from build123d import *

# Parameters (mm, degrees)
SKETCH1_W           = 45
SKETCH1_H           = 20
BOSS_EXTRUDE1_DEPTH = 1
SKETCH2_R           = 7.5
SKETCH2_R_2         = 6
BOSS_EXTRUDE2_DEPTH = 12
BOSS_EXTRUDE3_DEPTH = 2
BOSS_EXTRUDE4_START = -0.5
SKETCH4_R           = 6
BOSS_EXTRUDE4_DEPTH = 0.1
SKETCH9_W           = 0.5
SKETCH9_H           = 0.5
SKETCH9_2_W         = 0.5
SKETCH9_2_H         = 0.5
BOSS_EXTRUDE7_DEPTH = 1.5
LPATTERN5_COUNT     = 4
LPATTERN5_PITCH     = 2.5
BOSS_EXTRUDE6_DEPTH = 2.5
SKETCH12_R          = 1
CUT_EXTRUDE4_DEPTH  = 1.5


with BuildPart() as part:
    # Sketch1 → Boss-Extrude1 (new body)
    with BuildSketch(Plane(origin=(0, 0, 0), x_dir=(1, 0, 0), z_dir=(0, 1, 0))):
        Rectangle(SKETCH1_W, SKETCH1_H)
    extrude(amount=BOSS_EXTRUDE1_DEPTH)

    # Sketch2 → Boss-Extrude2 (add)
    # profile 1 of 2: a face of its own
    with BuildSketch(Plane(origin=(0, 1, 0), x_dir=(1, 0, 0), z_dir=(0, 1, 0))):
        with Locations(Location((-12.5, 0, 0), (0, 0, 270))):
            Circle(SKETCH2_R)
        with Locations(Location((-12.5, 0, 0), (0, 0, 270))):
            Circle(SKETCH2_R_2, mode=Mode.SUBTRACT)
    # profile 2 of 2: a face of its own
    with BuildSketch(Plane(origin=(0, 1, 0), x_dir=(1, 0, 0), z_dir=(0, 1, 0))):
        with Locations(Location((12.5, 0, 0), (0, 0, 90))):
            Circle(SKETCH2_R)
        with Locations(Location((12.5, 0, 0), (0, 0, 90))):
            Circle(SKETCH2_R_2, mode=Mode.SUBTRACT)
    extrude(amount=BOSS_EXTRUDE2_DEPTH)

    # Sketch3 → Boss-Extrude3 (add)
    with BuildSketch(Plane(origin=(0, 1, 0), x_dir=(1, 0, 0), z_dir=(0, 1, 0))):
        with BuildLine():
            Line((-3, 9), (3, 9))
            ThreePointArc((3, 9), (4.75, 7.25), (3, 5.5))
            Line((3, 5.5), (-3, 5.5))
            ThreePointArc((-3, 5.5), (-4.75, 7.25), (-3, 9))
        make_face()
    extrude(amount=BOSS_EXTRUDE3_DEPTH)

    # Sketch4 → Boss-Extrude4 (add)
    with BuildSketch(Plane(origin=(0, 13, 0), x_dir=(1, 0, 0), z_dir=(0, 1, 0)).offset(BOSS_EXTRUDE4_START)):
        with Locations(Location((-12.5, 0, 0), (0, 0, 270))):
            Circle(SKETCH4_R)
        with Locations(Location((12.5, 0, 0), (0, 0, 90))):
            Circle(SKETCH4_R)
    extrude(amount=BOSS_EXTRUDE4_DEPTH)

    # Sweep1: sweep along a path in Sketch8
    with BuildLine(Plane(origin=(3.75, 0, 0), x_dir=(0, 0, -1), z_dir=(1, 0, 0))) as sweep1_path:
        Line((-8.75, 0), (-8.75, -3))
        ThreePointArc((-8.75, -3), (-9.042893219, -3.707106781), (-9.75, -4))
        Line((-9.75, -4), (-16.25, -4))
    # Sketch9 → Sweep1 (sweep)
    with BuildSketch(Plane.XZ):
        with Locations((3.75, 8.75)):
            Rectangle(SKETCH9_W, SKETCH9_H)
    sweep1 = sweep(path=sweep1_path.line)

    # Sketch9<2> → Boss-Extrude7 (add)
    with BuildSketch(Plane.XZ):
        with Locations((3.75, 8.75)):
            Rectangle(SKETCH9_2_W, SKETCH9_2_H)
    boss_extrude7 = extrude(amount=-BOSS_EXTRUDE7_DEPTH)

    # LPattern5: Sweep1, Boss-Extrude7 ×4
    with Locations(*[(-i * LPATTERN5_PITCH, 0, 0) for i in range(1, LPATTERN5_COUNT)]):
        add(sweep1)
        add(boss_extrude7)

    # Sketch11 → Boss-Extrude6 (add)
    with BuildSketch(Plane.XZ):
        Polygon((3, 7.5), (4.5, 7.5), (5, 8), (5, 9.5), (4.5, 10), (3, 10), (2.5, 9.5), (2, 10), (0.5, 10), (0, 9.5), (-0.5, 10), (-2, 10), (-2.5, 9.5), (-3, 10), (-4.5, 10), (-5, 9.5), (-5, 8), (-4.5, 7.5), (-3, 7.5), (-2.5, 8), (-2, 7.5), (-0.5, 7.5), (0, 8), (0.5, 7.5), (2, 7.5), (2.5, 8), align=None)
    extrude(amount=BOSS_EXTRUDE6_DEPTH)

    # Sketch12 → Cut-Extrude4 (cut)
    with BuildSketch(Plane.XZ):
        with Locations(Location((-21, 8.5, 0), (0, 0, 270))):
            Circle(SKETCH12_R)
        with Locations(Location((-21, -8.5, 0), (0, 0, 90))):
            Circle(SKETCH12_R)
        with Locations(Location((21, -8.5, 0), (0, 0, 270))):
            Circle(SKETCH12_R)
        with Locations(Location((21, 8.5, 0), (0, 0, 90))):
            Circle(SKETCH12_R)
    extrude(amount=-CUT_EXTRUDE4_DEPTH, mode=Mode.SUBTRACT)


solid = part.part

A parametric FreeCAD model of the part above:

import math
import FreeCAD as App
import Part
import Sketcher

doc = App.newDocument("Part")
body = doc.addObject("PartDesign::Body", "Body")

sketch1 = doc.addObject("Sketcher::SketchObject", "Sketch")
body.addObject(sketch1)
sketch1.AttachmentSupport = (doc.XZ_Plane, [""])
sketch1.MapMode = "FlatFace"
sketch1.addGeometry([
    Part.LineSegment(App.Vector(-22, -10, 0), App.Vector(-22, 10, 0)),
    Part.LineSegment(App.Vector(-22, 10, 0), App.Vector(22, 10, 0)),
    Part.LineSegment(App.Vector(22, 10, 0), App.Vector(22, -10, 0)),
    Part.LineSegment(App.Vector(22, -10, 0), App.Vector(-22, -10, 0)),
], False)
sketch1.addConstraint([
    Sketcher.Constraint("Coincident", 0, 2, 1, 1),
    Sketcher.Constraint("Coincident", 1, 2, 2, 1),
    Sketcher.Constraint("Coincident", 2, 2, 3, 1),
    Sketcher.Constraint("Coincident", 3, 2, 0, 1),
    Sketcher.Constraint("Vertical", 0),
    Sketcher.Constraint("Horizontal", 1),
    Sketcher.Constraint("Vertical", 2),
    Sketcher.Constraint("Horizontal", 3),
    Sketcher.Constraint("Symmetric", 0, 2, 2, 2, -1, 1),
    Sketcher.Constraint("DistanceX", 1, 1, 1, 2, 45.0),
    Sketcher.Constraint("DistanceY", 0, 1, 0, 2, 20.0),
])
pad1 = doc.addObject("PartDesign::Pad", "Pad")
body.addObject(pad1)
pad1.Profile = sketch1
pad1.Length = 1
pad1.Reversed = True

sketch2 = doc.addObject("Sketcher::SketchObject", "Sketch001")
body.addObject(sketch2)
sketch2.AttachmentSupport = (doc.XZ_Plane, [""])
sketch2.MapMode = "FlatFace"
sketch2.AttachmentOffset = App.Placement(App.Vector(0, 0, -1), App.Rotation())
sketch2.addGeometry([
    Part.Circle(App.Vector(-12, 0, 0), App.Vector(0, 0, 1), 8),
    Part.Circle(App.Vector(-12, 0, 0), App.Vector(0, 0, 1), 6),
    Part.Circle(App.Vector(12, 0, 0), App.Vector(0, 0, 1), 8),
    Part.Circle(App.Vector(12, 0, 0), App.Vector(0, 0, 1), 6),
], False)
sketch2.addConstraint([
    Sketcher.Constraint("Coincident", 1, 3, 0, 3),
    Sketcher.Constraint("Coincident", 3, 3, 2, 3),
    Sketcher.Constraint("Equal", 0, 2),
    Sketcher.Constraint("Equal", 1, 3),
    Sketcher.Constraint("Symmetric", 0, 3, 2, 3, -1, 1),
    Sketcher.Constraint("PointOnObject", 0, 3, -1),
    Sketcher.Constraint("Diameter", 0, 15.0),
    Sketcher.Constraint("Diameter", 1, 12.0),
    Sketcher.Constraint("DistanceX", 0, 3, 2, 3, 25.0),
])
pad2 = doc.addObject("PartDesign::Pad", "Pad001")
body.addObject(pad2)
pad2.Profile = sketch2
pad2.Length = 12
pad2.Reversed = True

sketch3 = doc.addObject("Sketcher::SketchObject", "Sketch002")
body.addObject(sketch3)
sketch3.AttachmentSupport = (doc.XZ_Plane, [""])
sketch3.MapMode = "FlatFace"
sketch3.AttachmentOffset = App.Placement(App.Vector(0, 0, -1), App.Rotation())
sketch3.addGeometry([
    Part.LineSegment(App.Vector(3, -9, 0), App.Vector(-3, -9, 0)),
    Part.ArcOfCircle(Part.Circle(App.Vector(-3, -7.2, 0), App.Vector(0, 0, 1), 1.8), math.radians(90), math.radians(270)),
    Part.LineSegment(App.Vector(-3, -5.5, 0), App.Vector(3, -5.5, 0)),
    Part.ArcOfCircle(Part.Circle(App.Vector(3, -7.2, 0), App.Vector(0, 0, 1), 1.8), math.radians(-90), math.radians(90)),
], False)
sketch3.addConstraint([
    Sketcher.Constraint("Tangent", 0, 2, 1, 2),
    Sketcher.Constraint("Tangent", 1, 1, 2, 1),
    Sketcher.Constraint("Tangent", 2, 2, 3, 2),
    Sketcher.Constraint("Tangent", 3, 1, 0, 1),
    Sketcher.Constraint("Horizontal", 0),
    Sketcher.Constraint("Horizontal", 2),
    Sketcher.Constraint("DistanceX", 0, 2, 0, 1, 6.0),
    Sketcher.Constraint("Radius", 1, 1.75),
    Sketcher.Constraint("DistanceX", 1, 3, -1, 1, 3.0),
    Sketcher.Constraint("DistanceY", 0, 2, -1, 1, 9.0),
])
pad3 = doc.addObject("PartDesign::Pad", "Pad002")
body.addObject(pad3)
pad3.Profile = sketch3
pad3.Length = 2
pad3.Reversed = True

sketch4 = doc.addObject("Sketcher::SketchObject", "Sketch003")
body.addObject(sketch4)
sketch4.AttachmentSupport = (doc.XZ_Plane, [""])
sketch4.MapMode = "FlatFace"
sketch4.AttachmentOffset = App.Placement(App.Vector(0, 0, -12.5), App.Rotation())
sketch4.addGeometry([
    Part.Circle(App.Vector(-12, 0, 0), App.Vector(0, 0, 1), 6),
    Part.Circle(App.Vector(12, 0, 0), App.Vector(0, 0, 1), 6),
], False)
sketch4.addConstraint([
    Sketcher.Constraint("Equal", 0, 1),
    Sketcher.Constraint("Symmetric", 0, 3, 1, 3, -1, 1),
    Sketcher.Constraint("PointOnObject", 0, 3, -1),
    Sketcher.Constraint("Diameter", 0, 12.0),
    Sketcher.Constraint("DistanceX", 0, 3, 1, 3, 25.0),
])
pad4 = doc.addObject("PartDesign::Pad", "Pad003")
body.addObject(pad4)
pad4.Profile = sketch4
pad4.Length = 0.1
pad4.Reversed = True

sketch5 = doc.addObject("Sketcher::SketchObject", "Sketch004")
body.addObject(sketch5)
sketch5.AttachmentSupport = (doc.XZ_Plane, [""])
sketch5.MapMode = "FlatFace"
sketch5.addGeometry([
    Part.LineSegment(App.Vector(3.5, 9, 0), App.Vector(3.5, 8.5, 0)),
    Part.LineSegment(App.Vector(3.5, 8.5, 0), App.Vector(4, 8.5, 0)),
    Part.LineSegment(App.Vector(4, 8.5, 0), App.Vector(4, 9, 0)),
    Part.LineSegment(App.Vector(4, 9, 0), App.Vector(3.5, 9, 0)),
], False)
sketch5.addConstraint([
    Sketcher.Constraint("Coincident", 0, 2, 1, 1),
    Sketcher.Constraint("Coincident", 1, 2, 2, 1),
    Sketcher.Constraint("Coincident", 2, 2, 3, 1),
    Sketcher.Constraint("Coincident", 3, 2, 0, 1),
    Sketcher.Constraint("Vertical", 0),
    Sketcher.Constraint("Horizontal", 1),
    Sketcher.Constraint("Vertical", 2),
    Sketcher.Constraint("Horizontal", 3),
    Sketcher.Constraint("Equal", 3, 0),
    Sketcher.Constraint("DistanceX", 1, 1, 1, 2, 0.5),
    Sketcher.Constraint("DistanceX", -1, 1, 1, 2, 4.0),
    Sketcher.Constraint("DistanceY", -1, 1, 2, 2, 9.0),
])

sketch6 = doc.addObject("Sketcher::SketchObject", "Sketch005")
body.addObject(sketch6)
sketch6.AttachmentSupport = (doc.YZ_Plane, [""])
sketch6.MapMode = "FlatFace"
sketch6.AttachmentOffset = App.Placement(App.Vector(0, 0, 3.75), App.Rotation())
sketch6.addGeometry([
    Part.LineSegment(App.Vector(0, 8.8, 0), App.Vector(-3, 8.8, 0)),
    Part.ArcOfCircle(Part.Circle(App.Vector(-3, 9.8, 0), App.Vector(0, 0, 1), 1), math.radians(-180), math.radians(-90)),
    Part.LineSegment(App.Vector(-4, 9.8, 0), App.Vector(-4, 16.2, 0)),
], False)
sketch6.addConstraint([
    Sketcher.Constraint("Tangent", 0, 2, 1, 2),
    Sketcher.Constraint("Tangent", 1, 1, 2, 1),
    Sketcher.Constraint("Horizontal", 0),
    Sketcher.Constraint("Vertical", 2),
    Sketcher.Constraint("PointOnObject", 0, 1, -2),
    Sketcher.Constraint("Radius", 1, 1.0),
    Sketcher.Constraint("DistanceX", 0, 2, 0, 1, 3.0),
    Sketcher.Constraint("DistanceY", 2, 1, 2, 2, 6.5),
    Sketcher.Constraint("DistanceY", -1, 1, 1, 3, 9.75),
])
doc.recompute()

additivepipe = doc.addObject("PartDesign::AdditivePipe", "AdditivePipe")
body.addObject(additivepipe)
additivepipe.Profile = sketch5
additivepipe.Spine = (sketch6, ["Edge1", "Edge2", "Edge3"])

sketch7 = doc.addObject("Sketcher::SketchObject", "Sketch006")
body.addObject(sketch7)
sketch7.AttachmentSupport = (doc.XZ_Plane, [""])
sketch7.MapMode = "FlatFace"
sketch7.addGeometry([
    Part.LineSegment(App.Vector(3.5, 9, 0), App.Vector(3.5, 8.5, 0)),
    Part.LineSegment(App.Vector(3.5, 8.5, 0), App.Vector(4, 8.5, 0)),
    Part.LineSegment(App.Vector(4, 8.5, 0), App.Vector(4, 9, 0)),
    Part.LineSegment(App.Vector(4, 9, 0), App.Vector(3.5, 9, 0)),
], False)
sketch7.addConstraint([
    Sketcher.Constraint("Coincident", 0, 2, 1, 1),
    Sketcher.Constraint("Coincident", 1, 2, 2, 1),
    Sketcher.Constraint("Coincident", 2, 2, 3, 1),
    Sketcher.Constraint("Coincident", 3, 2, 0, 1),
    Sketcher.Constraint("Vertical", 0),
    Sketcher.Constraint("Horizontal", 1),
    Sketcher.Constraint("Vertical", 2),
    Sketcher.Constraint("Horizontal", 3),
    Sketcher.Constraint("Equal", 3, 0),
    Sketcher.Constraint("DistanceX", 1, 1, 1, 2, 0.5),
    Sketcher.Constraint("DistanceX", -1, 1, 1, 2, 4.0),
    Sketcher.Constraint("DistanceY", -1, 1, 2, 2, 9.0),
])
pad5 = doc.addObject("PartDesign::Pad", "Pad004")
body.addObject(pad5)
pad5.Profile = sketch7
pad5.Length = 1.5
pad5.Reversed = True
doc.recompute()

linearpattern = doc.addObject("PartDesign::LinearPattern", "LinearPattern")
body.addObject(linearpattern)
linearpattern.Originals = [additivepipe, pad5]
linearpattern.Direction = (doc.X_Axis, [""])
linearpattern.Mode = "offset"
linearpattern.Offset = 2.5
linearpattern.Occurrences = 4
linearpattern.Reversed = True
body.Tip = linearpattern

sketch8 = doc.addObject("Sketcher::SketchObject", "Sketch007")
body.addObject(sketch8)
sketch8.AttachmentSupport = (doc.XZ_Plane, [""])
sketch8.MapMode = "FlatFace"
sketch8.addGeometry([
    Part.LineSegment(App.Vector(3, 7.5, 0), App.Vector(4.5, 7.5, 0)),
    Part.LineSegment(App.Vector(4.5, 7.5, 0), App.Vector(5, 8, 0)),
    Part.LineSegment(App.Vector(5, 8, 0), App.Vector(5, 9.5, 0)),
    Part.LineSegment(App.Vector(5, 9.5, 0), App.Vector(4.5, 10, 0)),
    Part.LineSegment(App.Vector(4.5, 10, 0), App.Vector(3, 10, 0)),
    Part.LineSegment(App.Vector(3, 10, 0), App.Vector(2.5, 9.5, 0)),
    Part.LineSegment(App.Vector(2.5, 9.5, 0), App.Vector(2, 10, 0)),
    Part.LineSegment(App.Vector(2, 10, 0), App.Vector(0.5, 10, 0)),
    Part.LineSegment(App.Vector(0.5, 10, 0), App.Vector(0, 9.5, 0)),
    Part.LineSegment(App.Vector(0, 9.5, 0), App.Vector(-0.5, 10, 0)),
    Part.LineSegment(App.Vector(-0.5, 10, 0), App.Vector(-2, 10, 0)),
    Part.LineSegment(App.Vector(-2, 10, 0), App.Vector(-2.5, 9.5, 0)),
    Part.LineSegment(App.Vector(-2.5, 9.5, 0), App.Vector(-3, 10, 0)),
    Part.LineSegment(App.Vector(-3, 10, 0), App.Vector(-4.5, 10, 0)),
    Part.LineSegment(App.Vector(-4.5, 10, 0), App.Vector(-5, 9.5, 0)),
    Part.LineSegment(App.Vector(-5, 9.5, 0), App.Vector(-5, 8, 0)),
    Part.LineSegment(App.Vector(-5, 8, 0), App.Vector(-4.5, 7.5, 0)),
    Part.LineSegment(App.Vector(-4.5, 7.5, 0), App.Vector(-3, 7.5, 0)),
    Part.LineSegment(App.Vector(-3, 7.5, 0), App.Vector(-2.5, 8, 0)),
    Part.LineSegment(App.Vector(-2.5, 8, 0), App.Vector(-2, 7.5, 0)),
    Part.LineSegment(App.Vector(-2, 7.5, 0), App.Vector(-0.5, 7.5, 0)),
    Part.LineSegment(App.Vector(-0.5, 7.5, 0), App.Vector(0, 8, 0)),
    Part.LineSegment(App.Vector(0, 8, 0), App.Vector(0.5, 7.5, 0)),
    Part.LineSegment(App.Vector(0.5, 7.5, 0), App.Vector(2, 7.5, 0)),
    Part.LineSegment(App.Vector(2, 7.5, 0), App.Vector(2.5, 8, 0)),
    Part.LineSegment(App.Vector(2.5, 8, 0), App.Vector(3, 7.5, 0)),
], False)
sketch8.addConstraint([
    Sketcher.Constraint("Coincident", 0, 2, 1, 1),
    Sketcher.Constraint("Coincident", 1, 2, 2, 1),
    Sketcher.Constraint("Coincident", 2, 2, 3, 1),
    Sketcher.Constraint("Coincident", 3, 2, 4, 1),
    Sketcher.Constraint("Coincident", 4, 2, 5, 1),
    Sketcher.Constraint("Coincident", 5, 2, 6, 1),
    Sketcher.Constraint("Coincident", 6, 2, 7, 1),
    Sketcher.Constraint("Coincident", 7, 2, 8, 1),
    Sketcher.Constraint("Coincident", 8, 2, 9, 1),
    Sketcher.Constraint("Coincident", 9, 2, 10, 1),
    Sketcher.Constraint("Coincident", 10, 2, 11, 1),
    Sketcher.Constraint("Coincident", 11, 2, 12, 1),
    Sketcher.Constraint("Coincident", 12, 2, 13, 1),
    Sketcher.Constraint("Coincident", 13, 2, 14, 1),
    Sketcher.Constraint("Coincident", 14, 2, 15, 1),
    Sketcher.Constraint("Coincident", 15, 2, 16, 1),
    Sketcher.Constraint("Coincident", 16, 2, 17, 1),
    Sketcher.Constraint("Coincident", 17, 2, 18, 1),
    Sketcher.Constraint("Coincident", 18, 2, 19, 1),
    Sketcher.Constraint("Coincident", 19, 2, 20, 1),
    Sketcher.Constraint("Coincident", 20, 2, 21, 1),
    Sketcher.Constraint("Coincident", 21, 2, 22, 1),
    Sketcher.Constraint("Coincident", 22, 2, 23, 1),
    Sketcher.Constraint("Coincident", 23, 2, 24, 1),
    Sketcher.Constraint("Coincident", 24, 2, 25, 1),
    Sketcher.Constraint("Coincident", 25, 2, 0, 1),
    Sketcher.Constraint("Horizontal", 0),
    Sketcher.Constraint("Vertical", 2),
    Sketcher.Constraint("Horizontal", 4),
    Sketcher.Constraint("Horizontal", 7),
    Sketcher.Constraint("Horizontal", 10),
    Sketcher.Constraint("Horizontal", 13),
    Sketcher.Constraint("Vertical", 15),
    Sketcher.Constraint("Horizontal", 17),
    Sketcher.Constraint("Horizontal", 20),
    Sketcher.Constraint("Horizontal", 23),
    Sketcher.Constraint("Symmetric", 7, 2, 9, 2, -2),
    Sketcher.Constraint("Symmetric", 5, 2, 11, 2, -2),
    Sketcher.Constraint("Symmetric", 4, 2, 12, 2, -2),
    Sketcher.Constraint("Symmetric", 2, 2, 14, 2, -2),
    Sketcher.Constraint("Symmetric", 0, 2, 16, 2, -2),
    Sketcher.Constraint("Symmetric", 20, 2, 22, 2, -2),
    Sketcher.Constraint("Symmetric", 18, 2, 24, 2, -2),
    Sketcher.Constraint("PointOnObject", 8, 2, -2),
    Sketcher.Constraint("PointOnObject", 21, 2, -2),
    Sketcher.Constraint("Perpendicular", 1, 3),
    Sketcher.Constraint("Perpendicular", 3, 5),
    Sketcher.Constraint("Perpendicular", 5, 6),
    Sketcher.Constraint("Perpendicular", 6, 8),
    Sketcher.Constraint("Perpendicular", 8, 9),
    Sketcher.Constraint("Perpendicular", 9, 11),
    Sketcher.Constraint("Perpendicular", 12, 14),
    Sketcher.Constraint("Perpendicular", 14, 16),
    Sketcher.Constraint("Perpendicular", 16, 18),
    Sketcher.Constraint("Perpendicular", 18, 19),
    Sketcher.Constraint("Perpendicular", 19, 21),
    Sketcher.Constraint("Perpendicular", 22, 24),
    Sketcher.Constraint("Perpendicular", 24, 25),
    Sketcher.Constraint("Horizontal", 2, 2, 5, 2),
    Sketcher.Constraint("Horizontal", 4, 2, 6, 2),
    Sketcher.Constraint("Horizontal", 5, 2, 8, 2),
    Sketcher.Constraint("Horizontal", 15, 2, 18, 2),
    Sketcher.Constraint("Horizontal", 17, 2, 19, 2),
    Sketcher.Constraint("Horizontal", 18, 2, 21, 2),
    Sketcher.Constraint("Vertical", 0, 2, 3, 2),
    Sketcher.Constraint("Vertical", 12, 2, 17, 2),
    Sketcher.Constraint("Equal", 4, 7),
    Sketcher.Constraint("Equal", 23, 2),
    Sketcher.Constraint("DistanceX", 0, 1, 0, 2, 1.5),
    Sketcher.Constraint("DistanceX", -1, 1, 1, 2, 5.0),
    Sketcher.Constraint("DistanceY", -1, 1, 1, 2, 8.0),
])
pad6 = doc.addObject("PartDesign::Pad", "Pad005")
body.addObject(pad6)
pad6.Profile = sketch8
pad6.Length = 2.5

sketch9 = doc.addObject("Sketcher::SketchObject", "Sketch008")
body.addObject(sketch9)
sketch9.AttachmentSupport = (doc.XZ_Plane, [""])
sketch9.MapMode = "FlatFace"
sketch9.addGeometry([
    Part.Circle(App.Vector(-21, 8.5, 0), App.Vector(0, 0, 1), 1),
    Part.Circle(App.Vector(-21, -8.5, 0), App.Vector(0, 0, 1), 1),
    Part.Circle(App.Vector(21, -8.5, 0), App.Vector(0, 0, 1), 1),
    Part.Circle(App.Vector(21, 8.5, 0), App.Vector(0, 0, 1), 1),
], False)
sketch9.addConstraint([
    Sketcher.Constraint("Equal", 0, 1),
    Sketcher.Constraint("Equal", 1, 2),
    Sketcher.Constraint("Equal", 2, 3),
    Sketcher.Constraint("Symmetric", 0, 3, 2, 3, -1, 1),
    Sketcher.Constraint("Symmetric", 1, 3, 3, 3, -1, 1),
    Sketcher.Constraint("Symmetric", 1, 3, 2, 3, -2),
    Sketcher.Constraint("Diameter", 0, 2.0),
    Sketcher.Constraint("DistanceX", 0, 3, -1, 1, 21.0),
    Sketcher.Constraint("DistanceY", 1, 3, 0, 3, 17.0),
])
pocket1 = doc.addObject("PartDesign::Pocket", "Pocket")
body.addObject(pocket1)
pocket1.Profile = sketch9
pocket1.Length = 1.5

doc.recompute()
